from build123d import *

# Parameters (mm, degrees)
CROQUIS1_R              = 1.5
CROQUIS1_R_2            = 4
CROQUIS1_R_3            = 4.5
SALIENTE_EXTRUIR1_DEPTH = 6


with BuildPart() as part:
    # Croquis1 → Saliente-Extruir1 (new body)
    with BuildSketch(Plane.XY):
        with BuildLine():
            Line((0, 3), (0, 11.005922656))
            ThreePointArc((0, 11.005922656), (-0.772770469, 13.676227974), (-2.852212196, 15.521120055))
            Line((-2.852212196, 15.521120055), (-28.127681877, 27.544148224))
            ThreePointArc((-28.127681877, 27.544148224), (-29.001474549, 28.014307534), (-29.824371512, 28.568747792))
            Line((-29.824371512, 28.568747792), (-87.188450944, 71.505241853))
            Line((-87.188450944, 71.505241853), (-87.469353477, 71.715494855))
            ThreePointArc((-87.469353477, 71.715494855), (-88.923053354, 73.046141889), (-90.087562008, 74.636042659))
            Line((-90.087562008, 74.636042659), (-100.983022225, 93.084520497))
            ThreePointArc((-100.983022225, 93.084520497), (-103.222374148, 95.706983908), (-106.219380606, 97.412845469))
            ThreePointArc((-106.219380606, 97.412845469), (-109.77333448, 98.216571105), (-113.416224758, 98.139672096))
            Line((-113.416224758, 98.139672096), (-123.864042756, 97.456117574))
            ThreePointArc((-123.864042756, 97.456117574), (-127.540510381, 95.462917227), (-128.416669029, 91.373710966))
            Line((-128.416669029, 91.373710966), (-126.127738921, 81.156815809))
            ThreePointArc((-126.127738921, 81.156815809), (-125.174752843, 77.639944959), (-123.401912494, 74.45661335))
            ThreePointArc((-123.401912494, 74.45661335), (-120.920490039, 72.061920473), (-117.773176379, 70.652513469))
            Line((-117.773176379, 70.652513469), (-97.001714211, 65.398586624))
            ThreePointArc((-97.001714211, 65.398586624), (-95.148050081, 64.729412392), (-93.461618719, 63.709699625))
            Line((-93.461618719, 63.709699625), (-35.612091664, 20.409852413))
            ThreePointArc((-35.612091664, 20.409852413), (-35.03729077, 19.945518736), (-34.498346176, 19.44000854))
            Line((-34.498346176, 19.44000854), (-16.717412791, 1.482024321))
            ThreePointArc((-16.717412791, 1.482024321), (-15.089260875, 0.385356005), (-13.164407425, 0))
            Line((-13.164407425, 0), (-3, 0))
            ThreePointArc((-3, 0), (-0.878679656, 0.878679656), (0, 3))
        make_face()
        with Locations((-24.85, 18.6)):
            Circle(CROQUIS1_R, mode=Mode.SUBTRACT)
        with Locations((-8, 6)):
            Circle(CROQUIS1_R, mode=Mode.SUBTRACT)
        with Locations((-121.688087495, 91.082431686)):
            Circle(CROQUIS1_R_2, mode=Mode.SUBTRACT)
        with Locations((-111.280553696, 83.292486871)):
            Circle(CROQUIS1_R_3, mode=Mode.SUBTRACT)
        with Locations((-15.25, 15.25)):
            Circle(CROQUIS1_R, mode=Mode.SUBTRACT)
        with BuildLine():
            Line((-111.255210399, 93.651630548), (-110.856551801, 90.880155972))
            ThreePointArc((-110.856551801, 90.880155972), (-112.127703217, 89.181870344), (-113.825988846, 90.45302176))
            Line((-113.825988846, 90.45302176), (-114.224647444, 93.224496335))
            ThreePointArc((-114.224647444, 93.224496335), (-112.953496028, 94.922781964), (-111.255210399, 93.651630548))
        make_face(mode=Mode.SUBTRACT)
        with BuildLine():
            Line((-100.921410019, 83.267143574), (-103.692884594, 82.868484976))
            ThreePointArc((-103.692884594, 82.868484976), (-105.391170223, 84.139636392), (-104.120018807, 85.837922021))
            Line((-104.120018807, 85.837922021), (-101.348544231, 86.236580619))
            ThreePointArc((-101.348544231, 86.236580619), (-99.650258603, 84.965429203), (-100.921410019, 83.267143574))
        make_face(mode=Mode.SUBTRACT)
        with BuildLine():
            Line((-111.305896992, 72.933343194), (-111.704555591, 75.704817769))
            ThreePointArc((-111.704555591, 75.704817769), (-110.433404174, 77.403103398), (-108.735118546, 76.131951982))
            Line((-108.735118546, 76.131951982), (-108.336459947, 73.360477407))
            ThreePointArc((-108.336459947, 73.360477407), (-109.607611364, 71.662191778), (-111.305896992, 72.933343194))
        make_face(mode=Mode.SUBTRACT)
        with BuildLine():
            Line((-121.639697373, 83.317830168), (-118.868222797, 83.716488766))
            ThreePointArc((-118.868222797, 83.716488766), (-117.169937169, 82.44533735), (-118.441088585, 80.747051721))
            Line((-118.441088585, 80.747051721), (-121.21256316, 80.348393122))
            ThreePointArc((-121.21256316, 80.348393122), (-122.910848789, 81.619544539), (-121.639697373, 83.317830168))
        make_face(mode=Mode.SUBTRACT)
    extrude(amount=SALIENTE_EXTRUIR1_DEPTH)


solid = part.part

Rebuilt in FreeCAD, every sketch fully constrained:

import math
import FreeCAD as App
import Part
import Sketcher

V = App.Vector
Q = App.Units.Quantity

doc = App.newDocument("Part")
body = doc.addObject("PartDesign::Body", "Body")

# Sketch on XY plane
sketch1 = doc.addObject("Sketcher::SketchObject", "Sketch")
body.addObject(sketch1)
sketch1.AttachmentSupport = (doc.XY_Plane, [""])
sketch1.MapMode = "FlatFace"
sketch1.addGeometry([
    Part.LineSegment(V(0, 3, 0), V(0, 11.01, 0)),  # 0
    Part.ArcOfCircle(Part.Circle(V(-5, 11.01, 0), V(0, 0, 1), 5), math.radians(0), math.radians(65)),  # 1
    Part.LineSegment(V(-2.85, 15.52, 0), V(-28.13, 27.54, 0)),  # 2
    Part.ArcOfCircle(Part.Circle(V(-23.83, 36.57, 0), V(0, 0, 1), 10), math.radians(-126.81), math.radians(-115.44)),  # 3
    Part.LineSegment(V(-29.82, 28.57, 0), V(-87.19, 71.51, 0)),  # 4
    Part.LineSegment(V(-87.19, 71.51, 0), V(-87.47, 71.72, 0)),  # 5
    Part.ArcOfCircle(Part.Circle(V(-81.48, 79.72, 0), V(0, 0, 1), 10), math.radians(-149), math.radians(-127)),  # 6
    Part.LineSegment(V(-90.09, 74.64, 0), V(-100.98, 93.08, 0)),  # 7
    Part.ArcOfCircle(Part.Circle(V(-109.59, 88, 0), V(0, 0, 1), 10), math.radians(31), math.radians(70)),  # 8
    Part.ArcOfCircle(Part.Circle(V(-111.28, 83.29, 0), V(0, 0, 1), 15), math.radians(70), math.radians(98)),  # 9
    Part.LineSegment(V(-113.42, 98.14, 0), V(-123.86, 97.46, 0)),  # 10
    Part.ArcOfCircle(Part.Circle(V(-123.54, 92.47, 0), V(0, 0, 1), 5), math.radians(94), math.radians(193)),  # 11
    Part.LineSegment(V(-128.42, 91.37, 0), V(-126.13, 81.16, 0)),  # 12
    Part.ArcOfCircle(Part.Circle(V(-111.28, 83.29, 0), V(0, 0, 1), 15), math.radians(-172), math.radians(-144)),  # 13
    Part.ArcOfCircle(Part.Circle(V(-115.32, 80.35, 0), V(0, 0, 1), 10), math.radians(-144), math.radians(-104)),  # 14
    Part.LineSegment(V(-117.77, 70.65, 0), V(-97, 65.4, 0)),  # 15
    Part.ArcOfCircle(Part.Circle(V(-99.45, 55.7, 0), V(0, 0, 1), 10), math.radians(53), math.radians(76)),  # 16
    Part.LineSegment(V(-93.46, 63.71, 0), V(-35.61, 20.41, 0)),  # 17
    Part.ArcOfCircle(Part.Circle(V(-41.6, 12.4, 0), V(0, 0, 1), 10), math.radians(44.72), math.radians(53.19)),  # 18
    Part.LineSegment(V(-34.5, 19.44, 0), V(-16.72, 1.48, 0)),  # 19
    Part.ArcOfCircle(Part.Circle(V(-13.16, 5, 0), V(0, 0, 1), 5), math.radians(-135), math.radians(-90)),  # 20
    Part.LineSegment(V(-13.16, 0, 0), V(-3, 0, 0)),  # 21
    Part.ArcOfCircle(Part.Circle(V(-3, 3, 0), V(0, 0, 1), 3), math.radians(-90), math.radians(0)),  # 22
    Part.Circle(V(-8, 6, 0), V(0, 0, 1), 1.5),  # 23
    Part.Circle(V(-15.25, 15.25, 0), V(0, 0, 1), 1.5),  # 24
    Part.Circle(V(-24.85, 18.6, 0), V(0, 0, 1), 1.5),  # 25
    Part.ArcOfCircle(Part.Circle(V(-121.43, 81.83, 0), V(0, 0, 1), 1.5), math.radians(98), math.radians(278)),  # 26
    Part.LineSegment(V(-121.64, 83.32, 0), V(-118.87, 83.72, 0)),  # 27
    Part.ArcOfCircle(Part.Circle(V(-118.65, 82.23, 0), V(0, 0, 1), 1.5), math.radians(-82), math.radians(98)),  # 28
    Part.LineSegment(V(-118.44, 80.75, 0), V(-121.21, 80.35, 0)),  # 29
    Part.Circle(V(-111.28, 83.29, 0), V(0, 0, 1), 4.5),  # 30
    Part.ArcOfCircle(Part.Circle(V(-109.82, 73.15, 0), V(0, 0, 1), 1.5), math.radians(-172), math.radians(8)),  # 31
    Part.LineSegment(V(-111.31, 72.93, 0), V(-111.7, 75.7, 0)),  # 32
    Part.ArcOfCircle(Part.Circle(V(-110.22, 75.92, 0), V(0, 0, 1), 1.5), math.radians(8), math.radians(188)),  # 33
    Part.LineSegment(V(-108.74, 76.13, 0), V(-108.34, 73.36, 0)),  # 34
    Part.Circle(V(-121.69, 91.08, 0), V(0, 0, 1), 4),  # 35
    Part.ArcOfCircle(Part.Circle(V(-112.74, 93.44, 0), V(0, 0, 1), 1.5), math.radians(8), math.radians(188)),  # 36
    Part.LineSegment(V(-111.26, 93.65, 0), V(-110.86, 90.88, 0)),  # 37
    Part.ArcOfCircle(Part.Circle(V(-112.34, 90.67, 0), V(0, 0, 1), 1.5), math.radians(-172), math.radians(8)),  # 38
    Part.LineSegment(V(-113.83, 90.45, 0), V(-114.22, 93.22, 0)),  # 39
    Part.ArcOfCircle(Part.Circle(V(-101.13, 84.75, 0), V(0, 0, 1), 1.5), math.radians(-82), math.radians(98)),  # 40
    Part.LineSegment(V(-100.92, 83.27, 0), V(-103.69, 82.87, 0)),  # 41
    Part.ArcOfCircle(Part.Circle(V(-103.91, 84.35, 0), V(0, 0, 1), 1.5), math.radians(98), math.radians(278)),  # 42
    Part.LineSegment(V(-104.12, 85.84, 0), V(-101.35, 86.24, 0)),  # 43
], False)
sketch1.addConstraint([
    Sketcher.Constraint("Tangent", 0, 2, 1, 1),
    Sketcher.Constraint("Tangent", 1, 2, 2, 1),
    Sketcher.Constraint("Tangent", 2, 2, 3, 2),
    Sketcher.Constraint("Tangent", 3, 1, 4, 1),
    Sketcher.Constraint("Coincident", 4, 2, 5, 1),
    Sketcher.Constraint("Tangent", 5, 2, 6, 2),
    Sketcher.Constraint("Tangent", 6, 1, 7, 1),
    Sketcher.Constraint("Tangent", 7, 2, 8, 1),
    Sketcher.Constraint("Tangent", 8, 2, 9, 1),
    Sketcher.Constraint("Coincident", 9, 2, 10, 1),
    Sketcher.Constraint("Tangent", 10, 2, 11, 1),
    Sketcher.Constraint("Tangent", 11, 2, 12, 1),
    Sketcher.Constraint("Coincident", 12, 2, 13, 1),
    Sketcher.Constraint("Tangent", 13, 2, 14, 1),
    Sketcher.Constraint("Tangent", 14, 2, 15, 1),
    Sketcher.Constraint("Tangent", 15, 2, 16, 2),
    Sketcher.Constraint("Tangent", 16, 1, 17, 1),
    Sketcher.Constraint("Tangent", 17, 2, 18, 2),
    Sketcher.Constraint("Tangent", 18, 1, 19, 1),
    Sketcher.Constraint("Tangent", 19, 2, 20, 1),
    Sketcher.Constraint("Tangent", 20, 2, 21, 1),
    Sketcher.Constraint("Tangent", 21, 2, 22, 1),
    Sketcher.Constraint("Tangent", 22, 2, 0, 1),
    Sketcher.Constraint("Tangent", 26, 1, 27, 1),
    Sketcher.Constraint("Tangent", 27, 2, 28, 2),
    Sketcher.Constraint("Tangent", 28, 1, 29, 1),
    Sketcher.Constraint("Tangent", 29, 2, 26, 2),
    Sketcher.Constraint("Tangent", 31, 1, 32, 1),
    Sketcher.Constraint("Tangent", 32, 2, 33, 2),
    Sketcher.Constraint("Tangent", 33, 1, 34, 1),
    Sketcher.Constraint("Tangent", 34, 2, 31, 2),
    Sketcher.Constraint("Tangent", 36, 1, 37, 1),
    Sketcher.Constraint("Tangent", 37, 2, 38, 2),
    Sketcher.Constraint("Tangent", 38, 1, 39, 1),
    Sketcher.Constraint("Tangent", 39, 2, 36, 2),
    Sketcher.Constraint("Tangent", 40, 1, 41, 1),
    Sketcher.Constraint("Tangent", 41, 2, 42, 2),
    Sketcher.Constraint("Tangent", 42, 1, 43, 1),
    Sketcher.Constraint("Tangent", 43, 2, 40, 2),
    Sketcher.Constraint("Vertical", 0),
    Sketcher.Constraint("Horizontal", 21),
    Sketcher.Constraint("Coincident", 13, 3, 9, 3),
    Sketcher.Constraint("Coincident", 30, 3, 9, 3),
    Sketcher.Constraint("Equal", 3, 6),
    Sketcher.Constraint("Equal", 6, 8),
    Sketcher.Constraint("Equal", 1, 11),
    Sketcher.Constraint("Equal", 9, 13),
    Sketcher.Constraint("Equal", 8, 14),
    Sketcher.Constraint("Equal", 14, 16),
    Sketcher.Constraint("Equal", 16, 18),
    Sketcher.Constraint("Equal", 11, 20),
    Sketcher.Constraint("Equal", 23, 24),
    Sketcher.Constraint("Equal", 24, 25),
    Sketcher.Constraint("Equal", 25, 26),
    Sketcher.Constraint("Equal", 26, 28),
    Sketcher.Constraint("Equal", 28, 31),
    Sketcher.Constraint("Equal", 31, 33),
    Sketcher.Constraint("Equal", 33, 36),
    Sketcher.Constraint("Equal", 36, 38),
    Sketcher.Constraint("Equal", 38, 40),
    Sketcher.Constraint("Equal", 40, 42),
    Sketcher.Constraint("PointOnObject", 0, 2, -2),
    Sketcher.Constraint("PointOnObject", 20, 2, -1),
    Sketcher.Constraint("Parallel", 4, 5),
    Sketcher.Constraint("Parallel", 5, 17),
    Sketcher.Constraint("Perpendicular", 29, 32),
    Sketcher.Constraint("Parallel", 34, 37),
    Sketcher.Constraint("Perpendicular", 39, 41),
    Sketcher.Constraint("Equal", 10, 12),
    Sketcher.Constraint("Equal", 7, 15),
    Sketcher.Constraint("Equal", 29, 32),
    Sketcher.Constraint("Equal", 34, 37),
    Sketcher.Constraint("Equal", 39, 41),
    Sketcher.Constraint("Diameter", 23, Q("3 mm")),
    Sketcher.Constraint("Diameter", 30, Q("9 mm")),
    Sketcher.Constraint("Diameter", 35, Q("8 mm")),
    Sketcher.Constraint("Radius", 1, Q("5 mm")),
    Sketcher.Constraint("Radius", 3, Q("10 mm")),
    Sketcher.Constraint("Radius", 9, Q("15 mm")),
    Sketcher.Constraint("Radius", 22, Q("3 mm")),
    Sketcher.Constraint("DistanceX", 23, 3, -1, 1, Q("8 mm")),
    Sketcher.Constraint("DistanceY", -1, 1, 23, 3, Q("6 mm")),
    Sketcher.Constraint("Distance", 27, Q("2.8 mm")),
    Sketcher.Constraint("DistanceY", -1, 1, 25, 3, Q("18.6 mm")),
    Sketcher.Constraint("DistanceX", 24, 3, -1, 1, Q("15.25 mm")),
    Sketcher.Constraint("DistanceY", -1, 1, 24, 3, Q("15.25 mm")),
    Sketcher.Constraint("DistanceX", 25, 3, -1, 1, Q("24.85 mm")),
    Sketcher.Constraint("DistanceY", -1, 1, 16, 1, Q("63.7097 mm")),
    Sketcher.Constraint("Distance", 2, Q("27.98933 mm")),
    Sketcher.Constraint("Distance", 19, Q("25.271541 mm")),
    Sketcher.Constraint("DistanceX", 21, 1, 21, 2, Q("10.164407 mm")),
    Sketcher.Constraint("DistanceY", 0, 1, 0, 2, Q("8.005923 mm")),
    Sketcher.Constraint("DistanceX", 6, 3, -1, 1, Q("81.477088 mm")),
    Sketcher.Constraint("DistanceY", -1, 1, 6, 3, Q("79.72129 mm")),
    Sketcher.Constraint("DistanceX", 26, 3, -1, 1, Q("121.42613 mm")),
    Sketcher.Constraint("DistanceY", -1, 1, 26, 3, Q("81.833112 mm")),
    Sketcher.Constraint("DistanceY", -1, 1, 28, 3, Q("82.23177 mm")),
    Sketcher.Constraint("DistanceX", 31, 3, -1, 1, Q("109.821178 mm")),
    Sketcher.Constraint("DistanceY", -1, 1, 31, 3, Q("73.14691 mm")),
    Sketcher.Constraint("DistanceY", -1, 1, 35, 3, Q("91.082432 mm")),
    Sketcher.Constraint("DistanceX", 36, 3, -1, 1, Q("112.739929 mm")),
    Sketcher.Constraint("DistanceY", -1, 1, 38, 3, Q("90.666589 mm")),
    Sketcher.Constraint("DistanceX", 42, 3, -1, 1, Q("103.906452 mm")),
    Sketcher.Constraint("DistanceY", -1, 1, 1, 2, Q("15.52112 mm")),
    Sketcher.Constraint("DistanceX", 4, 2, -1, 1, Q("87.188451 mm")),
    Sketcher.Constraint("DistanceY", -1, 1, 7, 2, Q("93.08452 mm")),
    Sketcher.Constraint("DistanceX", 8, 2, -1, 1, Q("106.219381 mm")),
    Sketcher.Constraint("DistanceX", 11, 2, -1, 1, Q("128.416669 mm")),
    Sketcher.Constraint("DistanceY", -1, 1, 11, 2, Q("91.373711 mm")),
    Sketcher.Constraint("DistanceX", 12, 2, -1, 1, Q("126.127739 mm")),
    Sketcher.Constraint("DistanceX", 16, 1, -1, 1, Q("93.461619 mm")),
    Sketcher.Constraint("DistanceY", -1, 1, 43, 2, Q("86.236581 mm")),
    Sketcher.Constraint("Distance", 7, Q("21.425625 mm")),
    Sketcher.Constraint("DistanceX", 35, 3, -1, 1, Q("121.688087 mm")),
])
pad1 = doc.addObject("PartDesign::Pad", "Pad")
body.addObject(pad1)
pad1.Profile = sketch1
pad1.Length = 6

doc.recompute()
